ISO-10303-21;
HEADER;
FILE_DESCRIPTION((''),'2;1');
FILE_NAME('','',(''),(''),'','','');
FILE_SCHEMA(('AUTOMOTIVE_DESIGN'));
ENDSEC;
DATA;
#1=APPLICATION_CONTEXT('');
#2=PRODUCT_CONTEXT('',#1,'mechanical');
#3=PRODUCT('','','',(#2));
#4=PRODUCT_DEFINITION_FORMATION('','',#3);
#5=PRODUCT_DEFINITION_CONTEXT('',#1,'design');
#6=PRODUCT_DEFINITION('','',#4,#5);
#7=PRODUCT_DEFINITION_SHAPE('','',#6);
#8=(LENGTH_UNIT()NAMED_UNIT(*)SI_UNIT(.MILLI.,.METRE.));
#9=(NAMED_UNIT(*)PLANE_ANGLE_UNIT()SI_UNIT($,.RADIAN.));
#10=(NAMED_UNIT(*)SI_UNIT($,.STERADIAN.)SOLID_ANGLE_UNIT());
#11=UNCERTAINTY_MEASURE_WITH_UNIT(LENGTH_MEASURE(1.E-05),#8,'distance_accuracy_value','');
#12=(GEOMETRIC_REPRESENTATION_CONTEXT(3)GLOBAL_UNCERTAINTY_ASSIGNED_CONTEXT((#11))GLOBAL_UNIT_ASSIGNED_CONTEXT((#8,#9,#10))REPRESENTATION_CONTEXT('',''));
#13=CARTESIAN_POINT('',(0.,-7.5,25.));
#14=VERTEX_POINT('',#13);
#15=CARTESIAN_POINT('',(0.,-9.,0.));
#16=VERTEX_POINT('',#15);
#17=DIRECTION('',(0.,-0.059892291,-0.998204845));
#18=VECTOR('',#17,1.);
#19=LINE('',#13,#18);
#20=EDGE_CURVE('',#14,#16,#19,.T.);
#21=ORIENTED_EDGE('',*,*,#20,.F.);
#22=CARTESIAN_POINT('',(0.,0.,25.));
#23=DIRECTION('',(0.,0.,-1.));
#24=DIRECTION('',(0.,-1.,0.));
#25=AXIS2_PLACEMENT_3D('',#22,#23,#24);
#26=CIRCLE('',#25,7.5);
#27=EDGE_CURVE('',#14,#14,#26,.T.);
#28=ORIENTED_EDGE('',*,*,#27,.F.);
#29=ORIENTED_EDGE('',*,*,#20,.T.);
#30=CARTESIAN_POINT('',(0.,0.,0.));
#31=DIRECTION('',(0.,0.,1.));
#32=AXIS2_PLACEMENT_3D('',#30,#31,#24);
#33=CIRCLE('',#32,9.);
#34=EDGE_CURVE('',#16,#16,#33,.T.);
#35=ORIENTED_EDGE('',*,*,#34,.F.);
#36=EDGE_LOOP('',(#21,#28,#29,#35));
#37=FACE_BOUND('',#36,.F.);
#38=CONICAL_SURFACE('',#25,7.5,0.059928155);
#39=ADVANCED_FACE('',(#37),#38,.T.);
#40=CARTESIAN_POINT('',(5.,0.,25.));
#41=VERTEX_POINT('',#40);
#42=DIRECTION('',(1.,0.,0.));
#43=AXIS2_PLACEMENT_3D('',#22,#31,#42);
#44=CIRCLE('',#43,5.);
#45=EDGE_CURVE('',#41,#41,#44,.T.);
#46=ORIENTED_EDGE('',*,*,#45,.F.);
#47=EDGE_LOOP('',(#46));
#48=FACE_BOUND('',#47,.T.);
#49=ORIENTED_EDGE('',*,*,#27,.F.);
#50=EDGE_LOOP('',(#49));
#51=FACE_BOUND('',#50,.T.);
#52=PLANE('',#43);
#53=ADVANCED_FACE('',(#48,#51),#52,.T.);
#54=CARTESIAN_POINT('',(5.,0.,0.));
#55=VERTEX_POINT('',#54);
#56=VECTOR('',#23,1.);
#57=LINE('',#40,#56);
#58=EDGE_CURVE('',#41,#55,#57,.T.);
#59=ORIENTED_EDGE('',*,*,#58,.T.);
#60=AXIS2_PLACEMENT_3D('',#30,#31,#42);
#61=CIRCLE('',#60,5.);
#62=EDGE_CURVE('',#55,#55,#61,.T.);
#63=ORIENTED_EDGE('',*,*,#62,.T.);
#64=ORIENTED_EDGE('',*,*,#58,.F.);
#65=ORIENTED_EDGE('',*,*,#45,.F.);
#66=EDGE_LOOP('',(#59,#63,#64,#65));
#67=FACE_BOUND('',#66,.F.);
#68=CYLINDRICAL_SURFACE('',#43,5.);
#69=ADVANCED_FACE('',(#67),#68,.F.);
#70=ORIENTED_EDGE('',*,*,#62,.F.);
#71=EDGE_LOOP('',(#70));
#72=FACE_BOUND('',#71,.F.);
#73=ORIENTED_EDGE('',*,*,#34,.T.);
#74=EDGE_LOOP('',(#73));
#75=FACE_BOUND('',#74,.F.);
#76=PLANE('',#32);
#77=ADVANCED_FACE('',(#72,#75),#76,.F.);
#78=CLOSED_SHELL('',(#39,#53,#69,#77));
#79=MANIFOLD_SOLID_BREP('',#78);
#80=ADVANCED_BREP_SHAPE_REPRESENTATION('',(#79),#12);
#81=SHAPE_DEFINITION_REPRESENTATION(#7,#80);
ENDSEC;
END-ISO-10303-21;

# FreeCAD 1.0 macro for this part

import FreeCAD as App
import Part
import Sketcher


def add_polygon(sketch, points):
    """Adds a closed chain of lines whose ends are joined by coincident constraints."""
    first, n = sketch.GeometryCount, len(points)
    for a, b in zip(points, points[1:] + points[:1]):
        sketch.addGeometry(Part.LineSegment(App.Vector(*a, 0), App.Vector(*b, 0)), False)
    for i in range(n):
        sketch.addConstraint(Sketcher.Constraint("Coincident", first + i, 2, first + (i + 1) % n, 1))

doc = App.newDocument("Part")
body = doc.addObject("PartDesign::Body", "Body")

# Sketch on XY plane
sketch1 = body.newObject("Sketcher::SketchObject", "Sketch")
sketch1.AttachmentSupport = (doc.getObject("XY_Plane"), [""])
sketch1.MapMode = "FlatFace"
sketch1.AttachmentOffset = App.Placement(App.Vector(0, 0, 25), App.Rotation())
sketch1.addGeometry([
    Part.Circle(App.Vector(0, 0, 0), App.Vector(0, 0, 1), 8),
    Part.Circle(App.Vector(0, 0, 0), App.Vector(0, 0, 1), 5),
], False)
sketch1.addConstraint([
    Sketcher.Constraint("Coincident", 0, 3, -1, 1),
    Sketcher.Constraint("Coincident", 1, 3, -1, 1),
    Sketcher.Constraint("Diameter", 0, 15.0),
    Sketcher.Constraint("Diameter", 1, 10.0),
])
pad1 = body.newObject("PartDesign::Pad", "Pad")
pad1.Profile = sketch1
pad1.Length = 25
pad1.Reversed = True

# Sketch on YZ plane
sketch2 = body.newObject("Sketcher::SketchObject", "Sketch001")
sketch2.AttachmentSupport = (doc.getObject("YZ_Plane"), [""])
sketch2.MapMode = "FlatFace"
add_polygon(sketch2, [(-7.5, 25), (-9, 0), (-7.5, 0)])  # lines 0-2
sketch2.addConstraint([
    Sketcher.Constraint("Horizontal", 1),
    Sketcher.Constraint("Vertical", 2),
    Sketcher.Constraint("PointOnObject", 0, 2, -1),
    Sketcher.Constraint("DistanceY", 2, 1, 2, 2, 25.0),
    Sketcher.Constraint("DistanceX", 1, 1, 1, 2, 1.5),
    Sketcher.Constraint("DistanceX", 0, 2, -1, 1, 9.0),
])
revolution = body.newObject("PartDesign::Revolution", "Revolution")
revolution.Profile = sketch2
revolution.ReferenceAxis = (sketch2, ["V_Axis"])
revolution.Angle = 360

doc.recompute()
